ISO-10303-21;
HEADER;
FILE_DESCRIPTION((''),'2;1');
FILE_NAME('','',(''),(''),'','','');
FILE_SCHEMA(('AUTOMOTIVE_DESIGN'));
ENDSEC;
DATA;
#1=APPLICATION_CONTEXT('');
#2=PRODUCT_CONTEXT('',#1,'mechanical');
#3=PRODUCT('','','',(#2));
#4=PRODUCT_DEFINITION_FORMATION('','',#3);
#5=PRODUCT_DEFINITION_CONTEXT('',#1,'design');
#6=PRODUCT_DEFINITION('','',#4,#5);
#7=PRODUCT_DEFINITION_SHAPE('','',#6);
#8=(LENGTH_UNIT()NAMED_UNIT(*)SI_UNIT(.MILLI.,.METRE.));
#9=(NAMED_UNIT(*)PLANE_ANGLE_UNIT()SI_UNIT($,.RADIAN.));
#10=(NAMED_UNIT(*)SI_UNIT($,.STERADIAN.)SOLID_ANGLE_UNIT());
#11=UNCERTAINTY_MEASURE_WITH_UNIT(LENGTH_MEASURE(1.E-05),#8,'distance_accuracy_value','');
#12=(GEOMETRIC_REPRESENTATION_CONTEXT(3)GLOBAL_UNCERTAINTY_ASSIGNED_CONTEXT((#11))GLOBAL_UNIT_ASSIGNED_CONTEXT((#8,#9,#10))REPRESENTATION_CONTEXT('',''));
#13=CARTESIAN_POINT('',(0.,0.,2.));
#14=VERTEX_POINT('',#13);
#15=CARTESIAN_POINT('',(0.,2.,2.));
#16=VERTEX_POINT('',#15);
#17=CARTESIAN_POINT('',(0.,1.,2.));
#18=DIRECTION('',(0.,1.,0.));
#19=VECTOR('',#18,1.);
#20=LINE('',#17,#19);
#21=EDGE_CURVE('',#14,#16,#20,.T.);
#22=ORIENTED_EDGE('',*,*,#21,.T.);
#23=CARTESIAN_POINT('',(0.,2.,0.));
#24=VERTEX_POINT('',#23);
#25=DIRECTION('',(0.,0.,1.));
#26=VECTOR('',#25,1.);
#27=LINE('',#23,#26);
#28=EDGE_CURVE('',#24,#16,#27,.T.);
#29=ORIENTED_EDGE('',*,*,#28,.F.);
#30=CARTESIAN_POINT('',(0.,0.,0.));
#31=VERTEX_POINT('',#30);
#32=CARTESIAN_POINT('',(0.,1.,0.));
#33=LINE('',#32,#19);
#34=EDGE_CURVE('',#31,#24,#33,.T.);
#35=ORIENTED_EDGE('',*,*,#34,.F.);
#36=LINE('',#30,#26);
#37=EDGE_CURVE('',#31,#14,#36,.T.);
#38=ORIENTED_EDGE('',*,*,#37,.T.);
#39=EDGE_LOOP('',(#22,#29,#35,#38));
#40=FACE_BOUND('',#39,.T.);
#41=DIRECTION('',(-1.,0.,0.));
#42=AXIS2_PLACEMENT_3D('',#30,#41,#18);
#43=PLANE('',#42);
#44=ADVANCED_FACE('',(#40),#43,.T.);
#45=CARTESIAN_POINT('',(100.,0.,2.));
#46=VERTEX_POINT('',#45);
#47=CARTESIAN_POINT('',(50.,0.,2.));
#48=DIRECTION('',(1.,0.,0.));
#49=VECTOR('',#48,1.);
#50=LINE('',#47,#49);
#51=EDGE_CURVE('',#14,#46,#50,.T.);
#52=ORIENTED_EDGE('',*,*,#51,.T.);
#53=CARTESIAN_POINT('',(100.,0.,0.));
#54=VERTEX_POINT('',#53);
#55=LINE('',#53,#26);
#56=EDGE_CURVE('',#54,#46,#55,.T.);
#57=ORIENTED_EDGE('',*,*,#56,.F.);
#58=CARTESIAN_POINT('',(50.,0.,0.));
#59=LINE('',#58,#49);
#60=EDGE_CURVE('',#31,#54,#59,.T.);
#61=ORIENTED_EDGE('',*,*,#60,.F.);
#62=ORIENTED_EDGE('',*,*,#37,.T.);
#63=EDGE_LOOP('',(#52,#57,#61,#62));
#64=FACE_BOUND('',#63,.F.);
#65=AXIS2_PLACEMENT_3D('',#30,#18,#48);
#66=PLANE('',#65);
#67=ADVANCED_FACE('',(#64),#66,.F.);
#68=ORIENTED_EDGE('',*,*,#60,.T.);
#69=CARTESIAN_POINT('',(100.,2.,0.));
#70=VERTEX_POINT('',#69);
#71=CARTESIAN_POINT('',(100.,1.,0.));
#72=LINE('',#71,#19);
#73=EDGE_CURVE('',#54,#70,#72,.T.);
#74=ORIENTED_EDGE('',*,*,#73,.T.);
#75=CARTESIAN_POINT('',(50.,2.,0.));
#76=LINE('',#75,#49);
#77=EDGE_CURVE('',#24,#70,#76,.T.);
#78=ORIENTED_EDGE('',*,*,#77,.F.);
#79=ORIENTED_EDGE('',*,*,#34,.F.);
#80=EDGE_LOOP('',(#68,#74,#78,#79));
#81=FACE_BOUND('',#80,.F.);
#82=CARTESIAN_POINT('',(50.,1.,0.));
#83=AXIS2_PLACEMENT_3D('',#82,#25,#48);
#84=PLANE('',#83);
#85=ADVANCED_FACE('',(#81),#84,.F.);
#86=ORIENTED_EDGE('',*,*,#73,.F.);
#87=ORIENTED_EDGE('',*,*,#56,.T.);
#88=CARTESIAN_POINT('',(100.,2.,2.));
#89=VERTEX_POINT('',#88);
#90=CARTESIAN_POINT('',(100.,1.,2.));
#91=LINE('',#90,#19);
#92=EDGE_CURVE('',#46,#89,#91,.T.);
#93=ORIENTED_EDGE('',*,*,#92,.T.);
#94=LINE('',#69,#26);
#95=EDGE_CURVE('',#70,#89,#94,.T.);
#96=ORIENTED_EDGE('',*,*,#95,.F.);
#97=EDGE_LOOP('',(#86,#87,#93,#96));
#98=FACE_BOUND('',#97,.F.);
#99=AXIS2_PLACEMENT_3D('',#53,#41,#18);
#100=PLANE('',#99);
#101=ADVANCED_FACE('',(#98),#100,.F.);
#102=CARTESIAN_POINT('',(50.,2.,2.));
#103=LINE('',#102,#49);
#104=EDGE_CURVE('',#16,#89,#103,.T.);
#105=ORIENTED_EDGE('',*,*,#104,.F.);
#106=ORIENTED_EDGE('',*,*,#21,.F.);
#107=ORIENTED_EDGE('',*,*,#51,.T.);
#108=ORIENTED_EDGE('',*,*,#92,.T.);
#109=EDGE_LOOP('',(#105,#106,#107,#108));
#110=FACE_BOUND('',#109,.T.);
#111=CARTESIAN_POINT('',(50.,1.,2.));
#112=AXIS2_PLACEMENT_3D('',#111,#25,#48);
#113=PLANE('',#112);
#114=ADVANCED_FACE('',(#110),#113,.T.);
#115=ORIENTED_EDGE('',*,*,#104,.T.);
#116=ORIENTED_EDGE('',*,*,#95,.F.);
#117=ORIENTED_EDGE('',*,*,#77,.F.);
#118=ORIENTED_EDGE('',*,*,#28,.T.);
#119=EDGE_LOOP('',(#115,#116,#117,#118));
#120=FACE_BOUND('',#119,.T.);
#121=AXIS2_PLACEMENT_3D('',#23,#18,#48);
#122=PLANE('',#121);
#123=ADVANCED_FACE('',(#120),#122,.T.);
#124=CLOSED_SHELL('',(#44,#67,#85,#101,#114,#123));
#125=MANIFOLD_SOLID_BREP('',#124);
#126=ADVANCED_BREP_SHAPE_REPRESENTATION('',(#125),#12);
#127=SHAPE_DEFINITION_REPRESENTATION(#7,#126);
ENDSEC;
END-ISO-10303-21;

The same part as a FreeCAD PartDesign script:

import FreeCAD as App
import Part
import Sketcher

doc = App.newDocument("Part")
params = doc.addObject("Spreadsheet::Sheet", "Params")
for row, (alias, value) in enumerate([
    ("sketch1_width", "100 mm"),
    ("sketch1_height", "2 mm"),
    ("pad1_length", "2 mm"),
], start=1):
    params.set(f"A{row}", alias)
    params.set(f"B{row}", "=" + value)
    params.setAlias(f"B{row}", alias)

body = doc.addObject("PartDesign::Body", "Body")

sketch1 = body.newObject("Sketcher::SketchObject", "Sketch")
sketch1.AttachmentSupport = (doc.getObject("XY_Plane"), [""])
sketch1.MapMode = "FlatFace"
sketch1.addGeometry([
    Part.LineSegment(App.Vector(0, 2, 0), App.Vector(0, 0, 0)),
    Part.LineSegment(App.Vector(0, 0, 0), App.Vector(100, 0, 0)),
    Part.LineSegment(App.Vector(100, 0, 0), App.Vector(100, 2, 0)),
    Part.LineSegment(App.Vector(100, 2, 0), App.Vector(0, 2, 0)),
], False)
sketch1.addConstraint([
    Sketcher.Constraint("Coincident", 0, 2, 1, 1),
    Sketcher.Constraint("Coincident", 1, 2, 2, 1),
    Sketcher.Constraint("Coincident", 2, 2, 3, 1),
    Sketcher.Constraint("Coincident", 3, 2, 0, 1),
    Sketcher.Constraint("Vertical", 0),
    Sketcher.Constraint("Horizontal", 1),
    Sketcher.Constraint("Vertical", 2),
    Sketcher.Constraint("Horizontal", 3),
    Sketcher.Constraint("Coincident", 0, 2, -1, 1),
    Sketcher.Constraint("DistanceX", 1, 1, 1, 2, 100.0),
    Sketcher.Constraint("DistanceY", 0, 2, 0, 1, 2.0),
])
sketch1.setExpression("Constraints[9]", "Params.sketch1_width")
sketch1.setExpression("Constraints[10]", "Params.sketch1_height")
pad1 = body.newObject("PartDesign::Pad", "Pad")
pad1.Profile = sketch1
pad1.setExpression("Length", "Params.pad1_length")

doc.recompute()
